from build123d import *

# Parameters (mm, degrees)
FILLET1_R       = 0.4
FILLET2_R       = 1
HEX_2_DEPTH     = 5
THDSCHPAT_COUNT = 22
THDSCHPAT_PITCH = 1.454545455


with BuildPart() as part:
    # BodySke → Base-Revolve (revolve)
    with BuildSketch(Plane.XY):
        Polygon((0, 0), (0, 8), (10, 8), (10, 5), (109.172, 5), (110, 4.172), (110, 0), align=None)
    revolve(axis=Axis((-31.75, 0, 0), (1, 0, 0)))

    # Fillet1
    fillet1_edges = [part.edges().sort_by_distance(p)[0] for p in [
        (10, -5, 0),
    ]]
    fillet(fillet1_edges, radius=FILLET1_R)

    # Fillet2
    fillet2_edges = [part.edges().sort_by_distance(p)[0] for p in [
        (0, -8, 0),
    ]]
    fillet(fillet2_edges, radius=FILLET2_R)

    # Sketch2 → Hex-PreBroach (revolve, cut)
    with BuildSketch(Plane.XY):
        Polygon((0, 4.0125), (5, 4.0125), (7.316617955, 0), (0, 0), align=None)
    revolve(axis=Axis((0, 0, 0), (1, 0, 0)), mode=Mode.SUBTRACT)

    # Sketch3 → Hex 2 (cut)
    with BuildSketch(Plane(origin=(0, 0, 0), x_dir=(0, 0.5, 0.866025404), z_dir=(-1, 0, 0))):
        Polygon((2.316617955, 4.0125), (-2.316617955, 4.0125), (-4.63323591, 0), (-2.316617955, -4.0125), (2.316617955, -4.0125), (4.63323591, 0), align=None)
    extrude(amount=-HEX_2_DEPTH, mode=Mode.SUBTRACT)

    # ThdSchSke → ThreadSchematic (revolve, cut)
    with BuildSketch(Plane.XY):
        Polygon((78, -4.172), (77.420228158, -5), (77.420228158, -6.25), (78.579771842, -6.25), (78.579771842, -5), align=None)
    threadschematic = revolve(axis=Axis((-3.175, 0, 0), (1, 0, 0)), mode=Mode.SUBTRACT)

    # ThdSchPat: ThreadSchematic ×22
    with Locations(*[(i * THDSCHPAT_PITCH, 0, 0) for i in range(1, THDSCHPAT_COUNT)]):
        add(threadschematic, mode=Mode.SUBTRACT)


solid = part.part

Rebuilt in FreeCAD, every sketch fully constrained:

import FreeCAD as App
import Part
import Sketcher

V = App.Vector
Q = App.Units.Quantity


def edges_at(feature, points):
    """Names of the edges that pass closest to the given points."""
    edges = feature.Shape.Edges
    near = lambda p: min(range(len(edges)), key=lambda i: edges[i].distToShape(Part.Vertex(*p))[0])
    return sorted({f"Edge{near(p) + 1}" for p in points})

doc = App.newDocument("Part")
body = doc.addObject("PartDesign::Body", "Body")

sketch1 = body.newObject("Sketcher::SketchObject", "Sketch")
sketch1.AttachmentSupport = (doc.getObject("XY_Plane"), [""])
sketch1.MapMode = "FlatFace"
sketch1.addGeometry([
    Part.LineSegment(V(0, 8, 0), V(0, 0, 0)),
    Part.LineSegment(V(0, 0, 0), V(110, 0, 0)),
    Part.LineSegment(V(110, 0, 0), V(110, 4.2, 0)),
    Part.LineSegment(V(110, 4.2, 0), V(109.2, 5, 0)),
    Part.LineSegment(V(109.2, 5, 0), V(10, 5, 0)),
    Part.LineSegment(V(10, 5, 0), V(10, 8, 0)),
    Part.LineSegment(V(10, 8, 0), V(0, 8, 0)),
], False)
sketch1.addConstraint([
    Sketcher.Constraint("Coincident", 0, 2, 1, 1),
    Sketcher.Constraint("Coincident", 1, 2, 2, 1),
    Sketcher.Constraint("Coincident", 2, 2, 3, 1),
    Sketcher.Constraint("Coincident", 3, 2, 4, 1),
    Sketcher.Constraint("Coincident", 4, 2, 5, 1),
    Sketcher.Constraint("Coincident", 5, 2, 6, 1),
    Sketcher.Constraint("Coincident", 6, 2, 0, 1),
    Sketcher.Constraint("Vertical", 0),
    Sketcher.Constraint("Horizontal", 1),
    Sketcher.Constraint("Vertical", 2),
    Sketcher.Constraint("Horizontal", 4),
    Sketcher.Constraint("Vertical", 5),
    Sketcher.Constraint("Horizontal", 6),
    Sketcher.Constraint("Coincident", 0, 2, -1, 1),
    Sketcher.Constraint("DistanceX", 1, 1, 1, 2, Q("110 mm")),
    Sketcher.Constraint("DistanceX", 6, 2, 6, 1, Q("10 mm")),
    Sketcher.Constraint("DistanceY", 0, 2, 0, 1, Q("8 mm")),
    Sketcher.Constraint("DistanceY", 5, 1, 5, 2, Q("3 mm")),
    Sketcher.Constraint("Angle", 3, Q("135 deg")),
    Sketcher.Constraint("DistanceX", 4, 2, 4, 1, Q("99.172 mm")),
])
revolution = body.newObject("PartDesign::Revolution", "Revolution")
revolution.Profile = sketch1
revolution.ReferenceAxis = (sketch1, ["H_Axis"])
revolution.Angle = 360
doc.recompute()

fillet = body.newObject("PartDesign::Fillet", "Fillet")
fillet.Base = (revolution, edges_at(revolution, [(10, -5, 0)]))
fillet.Radius = 0.4
doc.recompute()

fillet2 = body.newObject("PartDesign::Fillet", "Fillet001")
fillet2.Base = (fillet, edges_at(fillet, [(0, -8, 0)]))
fillet2.Radius = 1

sketch2 = body.newObject("Sketcher::SketchObject", "Sketch001")
sketch2.AttachmentSupport = (doc.getObject("XY_Plane"), [""])
sketch2.MapMode = "FlatFace"
sketch2.addGeometry([
    Part.LineSegment(V(5, 4, 0), V(0, 4, 0)),
    Part.LineSegment(V(0, 4, 0), V(0, 0, 0)),
    Part.LineSegment(V(0, 0, 0), V(7.3, 0, 0)),
    Part.LineSegment(V(7.3, 0, 0), V(5, 4, 0)),
], False)
sketch2.addConstraint([
    Sketcher.Constraint("Coincident", 0, 2, 1, 1),
    Sketcher.Constraint("Coincident", 1, 2, 2, 1),
    Sketcher.Constraint("Coincident", 2, 2, 3, 1),
    Sketcher.Constraint("Coincident", 3, 2, 0, 1),
    Sketcher.Constraint("Horizontal", 0),
    Sketcher.Constraint("Vertical", 1),
    Sketcher.Constraint("Horizontal", 2),
    Sketcher.Constraint("Coincident", 1, 2, -1, 1),
    Sketcher.Constraint("DistanceX", 0, 2, 0, 1, Q("5 mm")),
    Sketcher.Constraint("Angle", 3, Q("120 deg")),
    Sketcher.Constraint("DistanceY", 1, 2, 1, 1, Q("4.0125 mm")),
])
groove = body.newObject("PartDesign::Groove", "Groove")
groove.Profile = sketch2
groove.ReferenceAxis = (sketch2, ["H_Axis"])
groove.Angle = 360

sketch3 = body.newObject("Sketcher::SketchObject", "Sketch002")
sketch3.AttachmentSupport = (doc.getObject("YZ_Plane"), [""])
sketch3.MapMode = "FlatFace"
sketch3.addGeometry([
    Part.LineSegment(V(4.6, 0, 0), V(2.3, -4, 0)),
    Part.LineSegment(V(2.3, -4, 0), V(-2.3, -4, 0)),
    Part.LineSegment(V(-2.3, -4, 0), V(-4.6, 0, 0)),
    Part.LineSegment(V(-4.6, 0, 0), V(-2.3, 4, 0)),
    Part.LineSegment(V(-2.3, 4, 0), V(2.3, 4, 0)),
    Part.LineSegment(V(2.3, 4, 0), V(4.6, 0, 0)),
], False)
sketch3.addConstraint([
    Sketcher.Constraint("Coincident", 0, 2, 1, 1),
    Sketcher.Constraint("Coincident", 1, 2, 2, 1),
    Sketcher.Constraint("Coincident", 2, 2, 3, 1),
    Sketcher.Constraint("Coincident", 3, 2, 4, 1),
    Sketcher.Constraint("Coincident", 4, 2, 5, 1),
    Sketcher.Constraint("Coincident", 5, 2, 0, 1),
    Sketcher.Constraint("Horizontal", 1),
    Sketcher.Constraint("Horizontal", 4),
    Sketcher.Constraint("Symmetric", 0, 2, 3, 2, -1, 1),
    Sketcher.Constraint("Symmetric", 2, 2, 5, 2, -1, 1),
    Sketcher.Constraint("PointOnObject", 2, 2, -1),
    Sketcher.Constraint("Parallel", 2, 5),
    Sketcher.Constraint("Vertical", 1, 2, 3, 2),
    Sketcher.Constraint("Angle", 0, Q("-120 deg")),
    Sketcher.Constraint("DistanceY", 1, 2, 3, 2, Q("8.025 mm")),
    Sketcher.Constraint("DistanceX", 1, 2, 1, 1, Q("4.633236 mm")),
])
pocket1 = body.newObject("PartDesign::Pocket", "Pocket")
pocket1.Profile = sketch3
pocket1.Length = 5
pocket1.Reversed = True

sketch4 = body.newObject("Sketcher::SketchObject", "Sketch003")
sketch4.AttachmentSupport = (doc.getObject("XY_Plane"), [""])
sketch4.MapMode = "FlatFace"
sketch4.addGeometry([
    Part.LineSegment(V(78, -4.2, 0), V(77.4, -5, 0)),
    Part.LineSegment(V(77.4, -5, 0), V(77.4, -6.2, 0)),
    Part.LineSegment(V(77.4, -6.2, 0), V(78.6, -6.2, 0)),
    Part.LineSegment(V(78.6, -6.2, 0), V(78.6, -5, 0)),
    Part.LineSegment(V(78.6, -5, 0), V(78, -4.2, 0)),
], False)
sketch4.addConstraint([
    Sketcher.Constraint("Coincident", 0, 2, 1, 1),
    Sketcher.Constraint("Coincident", 1, 2, 2, 1),
    Sketcher.Constraint("Coincident", 2, 2, 3, 1),
    Sketcher.Constraint("Coincident", 3, 2, 4, 1),
    Sketcher.Constraint("Coincident", 4, 2, 0, 1),
    Sketcher.Constraint("Vertical", 1),
    Sketcher.Constraint("Horizontal", 2),
    Sketcher.Constraint("Vertical", 3),
    Sketcher.Constraint("Horizontal", 0, 2, 3, 2),
    Sketcher.Constraint("Equal", 0, 4),
    Sketcher.Constraint("Angle", 0, Q("-125 deg")),
    Sketcher.Constraint("DistanceY", 0, 2, -1, 1, Q("5 mm")),
    Sketcher.Constraint("DistanceX", -1, 1, 4, 2, Q("78 mm")),
    Sketcher.Constraint("DistanceY", 1, 2, 1, 1, Q("1.25 mm")),
    Sketcher.Constraint("DistanceY", 4, 2, -1, 1, Q("4.172 mm")),
])
groove2 = body.newObject("PartDesign::Groove", "Groove001")
groove2.Profile = sketch4
groove2.ReferenceAxis = (sketch4, ["H_Axis"])
groove2.Angle = 360
doc.recompute()

linearpattern = body.newObject("PartDesign::LinearPattern", "LinearPattern")
linearpattern.Originals = [groove2]
linearpattern.Direction = (doc.getObject("X_Axis"), [""])
linearpattern.Mode = "offset"
linearpattern.Offset = 1.454545
linearpattern.Occurrences = 22
body.Tip = linearpattern

doc.recompute()
